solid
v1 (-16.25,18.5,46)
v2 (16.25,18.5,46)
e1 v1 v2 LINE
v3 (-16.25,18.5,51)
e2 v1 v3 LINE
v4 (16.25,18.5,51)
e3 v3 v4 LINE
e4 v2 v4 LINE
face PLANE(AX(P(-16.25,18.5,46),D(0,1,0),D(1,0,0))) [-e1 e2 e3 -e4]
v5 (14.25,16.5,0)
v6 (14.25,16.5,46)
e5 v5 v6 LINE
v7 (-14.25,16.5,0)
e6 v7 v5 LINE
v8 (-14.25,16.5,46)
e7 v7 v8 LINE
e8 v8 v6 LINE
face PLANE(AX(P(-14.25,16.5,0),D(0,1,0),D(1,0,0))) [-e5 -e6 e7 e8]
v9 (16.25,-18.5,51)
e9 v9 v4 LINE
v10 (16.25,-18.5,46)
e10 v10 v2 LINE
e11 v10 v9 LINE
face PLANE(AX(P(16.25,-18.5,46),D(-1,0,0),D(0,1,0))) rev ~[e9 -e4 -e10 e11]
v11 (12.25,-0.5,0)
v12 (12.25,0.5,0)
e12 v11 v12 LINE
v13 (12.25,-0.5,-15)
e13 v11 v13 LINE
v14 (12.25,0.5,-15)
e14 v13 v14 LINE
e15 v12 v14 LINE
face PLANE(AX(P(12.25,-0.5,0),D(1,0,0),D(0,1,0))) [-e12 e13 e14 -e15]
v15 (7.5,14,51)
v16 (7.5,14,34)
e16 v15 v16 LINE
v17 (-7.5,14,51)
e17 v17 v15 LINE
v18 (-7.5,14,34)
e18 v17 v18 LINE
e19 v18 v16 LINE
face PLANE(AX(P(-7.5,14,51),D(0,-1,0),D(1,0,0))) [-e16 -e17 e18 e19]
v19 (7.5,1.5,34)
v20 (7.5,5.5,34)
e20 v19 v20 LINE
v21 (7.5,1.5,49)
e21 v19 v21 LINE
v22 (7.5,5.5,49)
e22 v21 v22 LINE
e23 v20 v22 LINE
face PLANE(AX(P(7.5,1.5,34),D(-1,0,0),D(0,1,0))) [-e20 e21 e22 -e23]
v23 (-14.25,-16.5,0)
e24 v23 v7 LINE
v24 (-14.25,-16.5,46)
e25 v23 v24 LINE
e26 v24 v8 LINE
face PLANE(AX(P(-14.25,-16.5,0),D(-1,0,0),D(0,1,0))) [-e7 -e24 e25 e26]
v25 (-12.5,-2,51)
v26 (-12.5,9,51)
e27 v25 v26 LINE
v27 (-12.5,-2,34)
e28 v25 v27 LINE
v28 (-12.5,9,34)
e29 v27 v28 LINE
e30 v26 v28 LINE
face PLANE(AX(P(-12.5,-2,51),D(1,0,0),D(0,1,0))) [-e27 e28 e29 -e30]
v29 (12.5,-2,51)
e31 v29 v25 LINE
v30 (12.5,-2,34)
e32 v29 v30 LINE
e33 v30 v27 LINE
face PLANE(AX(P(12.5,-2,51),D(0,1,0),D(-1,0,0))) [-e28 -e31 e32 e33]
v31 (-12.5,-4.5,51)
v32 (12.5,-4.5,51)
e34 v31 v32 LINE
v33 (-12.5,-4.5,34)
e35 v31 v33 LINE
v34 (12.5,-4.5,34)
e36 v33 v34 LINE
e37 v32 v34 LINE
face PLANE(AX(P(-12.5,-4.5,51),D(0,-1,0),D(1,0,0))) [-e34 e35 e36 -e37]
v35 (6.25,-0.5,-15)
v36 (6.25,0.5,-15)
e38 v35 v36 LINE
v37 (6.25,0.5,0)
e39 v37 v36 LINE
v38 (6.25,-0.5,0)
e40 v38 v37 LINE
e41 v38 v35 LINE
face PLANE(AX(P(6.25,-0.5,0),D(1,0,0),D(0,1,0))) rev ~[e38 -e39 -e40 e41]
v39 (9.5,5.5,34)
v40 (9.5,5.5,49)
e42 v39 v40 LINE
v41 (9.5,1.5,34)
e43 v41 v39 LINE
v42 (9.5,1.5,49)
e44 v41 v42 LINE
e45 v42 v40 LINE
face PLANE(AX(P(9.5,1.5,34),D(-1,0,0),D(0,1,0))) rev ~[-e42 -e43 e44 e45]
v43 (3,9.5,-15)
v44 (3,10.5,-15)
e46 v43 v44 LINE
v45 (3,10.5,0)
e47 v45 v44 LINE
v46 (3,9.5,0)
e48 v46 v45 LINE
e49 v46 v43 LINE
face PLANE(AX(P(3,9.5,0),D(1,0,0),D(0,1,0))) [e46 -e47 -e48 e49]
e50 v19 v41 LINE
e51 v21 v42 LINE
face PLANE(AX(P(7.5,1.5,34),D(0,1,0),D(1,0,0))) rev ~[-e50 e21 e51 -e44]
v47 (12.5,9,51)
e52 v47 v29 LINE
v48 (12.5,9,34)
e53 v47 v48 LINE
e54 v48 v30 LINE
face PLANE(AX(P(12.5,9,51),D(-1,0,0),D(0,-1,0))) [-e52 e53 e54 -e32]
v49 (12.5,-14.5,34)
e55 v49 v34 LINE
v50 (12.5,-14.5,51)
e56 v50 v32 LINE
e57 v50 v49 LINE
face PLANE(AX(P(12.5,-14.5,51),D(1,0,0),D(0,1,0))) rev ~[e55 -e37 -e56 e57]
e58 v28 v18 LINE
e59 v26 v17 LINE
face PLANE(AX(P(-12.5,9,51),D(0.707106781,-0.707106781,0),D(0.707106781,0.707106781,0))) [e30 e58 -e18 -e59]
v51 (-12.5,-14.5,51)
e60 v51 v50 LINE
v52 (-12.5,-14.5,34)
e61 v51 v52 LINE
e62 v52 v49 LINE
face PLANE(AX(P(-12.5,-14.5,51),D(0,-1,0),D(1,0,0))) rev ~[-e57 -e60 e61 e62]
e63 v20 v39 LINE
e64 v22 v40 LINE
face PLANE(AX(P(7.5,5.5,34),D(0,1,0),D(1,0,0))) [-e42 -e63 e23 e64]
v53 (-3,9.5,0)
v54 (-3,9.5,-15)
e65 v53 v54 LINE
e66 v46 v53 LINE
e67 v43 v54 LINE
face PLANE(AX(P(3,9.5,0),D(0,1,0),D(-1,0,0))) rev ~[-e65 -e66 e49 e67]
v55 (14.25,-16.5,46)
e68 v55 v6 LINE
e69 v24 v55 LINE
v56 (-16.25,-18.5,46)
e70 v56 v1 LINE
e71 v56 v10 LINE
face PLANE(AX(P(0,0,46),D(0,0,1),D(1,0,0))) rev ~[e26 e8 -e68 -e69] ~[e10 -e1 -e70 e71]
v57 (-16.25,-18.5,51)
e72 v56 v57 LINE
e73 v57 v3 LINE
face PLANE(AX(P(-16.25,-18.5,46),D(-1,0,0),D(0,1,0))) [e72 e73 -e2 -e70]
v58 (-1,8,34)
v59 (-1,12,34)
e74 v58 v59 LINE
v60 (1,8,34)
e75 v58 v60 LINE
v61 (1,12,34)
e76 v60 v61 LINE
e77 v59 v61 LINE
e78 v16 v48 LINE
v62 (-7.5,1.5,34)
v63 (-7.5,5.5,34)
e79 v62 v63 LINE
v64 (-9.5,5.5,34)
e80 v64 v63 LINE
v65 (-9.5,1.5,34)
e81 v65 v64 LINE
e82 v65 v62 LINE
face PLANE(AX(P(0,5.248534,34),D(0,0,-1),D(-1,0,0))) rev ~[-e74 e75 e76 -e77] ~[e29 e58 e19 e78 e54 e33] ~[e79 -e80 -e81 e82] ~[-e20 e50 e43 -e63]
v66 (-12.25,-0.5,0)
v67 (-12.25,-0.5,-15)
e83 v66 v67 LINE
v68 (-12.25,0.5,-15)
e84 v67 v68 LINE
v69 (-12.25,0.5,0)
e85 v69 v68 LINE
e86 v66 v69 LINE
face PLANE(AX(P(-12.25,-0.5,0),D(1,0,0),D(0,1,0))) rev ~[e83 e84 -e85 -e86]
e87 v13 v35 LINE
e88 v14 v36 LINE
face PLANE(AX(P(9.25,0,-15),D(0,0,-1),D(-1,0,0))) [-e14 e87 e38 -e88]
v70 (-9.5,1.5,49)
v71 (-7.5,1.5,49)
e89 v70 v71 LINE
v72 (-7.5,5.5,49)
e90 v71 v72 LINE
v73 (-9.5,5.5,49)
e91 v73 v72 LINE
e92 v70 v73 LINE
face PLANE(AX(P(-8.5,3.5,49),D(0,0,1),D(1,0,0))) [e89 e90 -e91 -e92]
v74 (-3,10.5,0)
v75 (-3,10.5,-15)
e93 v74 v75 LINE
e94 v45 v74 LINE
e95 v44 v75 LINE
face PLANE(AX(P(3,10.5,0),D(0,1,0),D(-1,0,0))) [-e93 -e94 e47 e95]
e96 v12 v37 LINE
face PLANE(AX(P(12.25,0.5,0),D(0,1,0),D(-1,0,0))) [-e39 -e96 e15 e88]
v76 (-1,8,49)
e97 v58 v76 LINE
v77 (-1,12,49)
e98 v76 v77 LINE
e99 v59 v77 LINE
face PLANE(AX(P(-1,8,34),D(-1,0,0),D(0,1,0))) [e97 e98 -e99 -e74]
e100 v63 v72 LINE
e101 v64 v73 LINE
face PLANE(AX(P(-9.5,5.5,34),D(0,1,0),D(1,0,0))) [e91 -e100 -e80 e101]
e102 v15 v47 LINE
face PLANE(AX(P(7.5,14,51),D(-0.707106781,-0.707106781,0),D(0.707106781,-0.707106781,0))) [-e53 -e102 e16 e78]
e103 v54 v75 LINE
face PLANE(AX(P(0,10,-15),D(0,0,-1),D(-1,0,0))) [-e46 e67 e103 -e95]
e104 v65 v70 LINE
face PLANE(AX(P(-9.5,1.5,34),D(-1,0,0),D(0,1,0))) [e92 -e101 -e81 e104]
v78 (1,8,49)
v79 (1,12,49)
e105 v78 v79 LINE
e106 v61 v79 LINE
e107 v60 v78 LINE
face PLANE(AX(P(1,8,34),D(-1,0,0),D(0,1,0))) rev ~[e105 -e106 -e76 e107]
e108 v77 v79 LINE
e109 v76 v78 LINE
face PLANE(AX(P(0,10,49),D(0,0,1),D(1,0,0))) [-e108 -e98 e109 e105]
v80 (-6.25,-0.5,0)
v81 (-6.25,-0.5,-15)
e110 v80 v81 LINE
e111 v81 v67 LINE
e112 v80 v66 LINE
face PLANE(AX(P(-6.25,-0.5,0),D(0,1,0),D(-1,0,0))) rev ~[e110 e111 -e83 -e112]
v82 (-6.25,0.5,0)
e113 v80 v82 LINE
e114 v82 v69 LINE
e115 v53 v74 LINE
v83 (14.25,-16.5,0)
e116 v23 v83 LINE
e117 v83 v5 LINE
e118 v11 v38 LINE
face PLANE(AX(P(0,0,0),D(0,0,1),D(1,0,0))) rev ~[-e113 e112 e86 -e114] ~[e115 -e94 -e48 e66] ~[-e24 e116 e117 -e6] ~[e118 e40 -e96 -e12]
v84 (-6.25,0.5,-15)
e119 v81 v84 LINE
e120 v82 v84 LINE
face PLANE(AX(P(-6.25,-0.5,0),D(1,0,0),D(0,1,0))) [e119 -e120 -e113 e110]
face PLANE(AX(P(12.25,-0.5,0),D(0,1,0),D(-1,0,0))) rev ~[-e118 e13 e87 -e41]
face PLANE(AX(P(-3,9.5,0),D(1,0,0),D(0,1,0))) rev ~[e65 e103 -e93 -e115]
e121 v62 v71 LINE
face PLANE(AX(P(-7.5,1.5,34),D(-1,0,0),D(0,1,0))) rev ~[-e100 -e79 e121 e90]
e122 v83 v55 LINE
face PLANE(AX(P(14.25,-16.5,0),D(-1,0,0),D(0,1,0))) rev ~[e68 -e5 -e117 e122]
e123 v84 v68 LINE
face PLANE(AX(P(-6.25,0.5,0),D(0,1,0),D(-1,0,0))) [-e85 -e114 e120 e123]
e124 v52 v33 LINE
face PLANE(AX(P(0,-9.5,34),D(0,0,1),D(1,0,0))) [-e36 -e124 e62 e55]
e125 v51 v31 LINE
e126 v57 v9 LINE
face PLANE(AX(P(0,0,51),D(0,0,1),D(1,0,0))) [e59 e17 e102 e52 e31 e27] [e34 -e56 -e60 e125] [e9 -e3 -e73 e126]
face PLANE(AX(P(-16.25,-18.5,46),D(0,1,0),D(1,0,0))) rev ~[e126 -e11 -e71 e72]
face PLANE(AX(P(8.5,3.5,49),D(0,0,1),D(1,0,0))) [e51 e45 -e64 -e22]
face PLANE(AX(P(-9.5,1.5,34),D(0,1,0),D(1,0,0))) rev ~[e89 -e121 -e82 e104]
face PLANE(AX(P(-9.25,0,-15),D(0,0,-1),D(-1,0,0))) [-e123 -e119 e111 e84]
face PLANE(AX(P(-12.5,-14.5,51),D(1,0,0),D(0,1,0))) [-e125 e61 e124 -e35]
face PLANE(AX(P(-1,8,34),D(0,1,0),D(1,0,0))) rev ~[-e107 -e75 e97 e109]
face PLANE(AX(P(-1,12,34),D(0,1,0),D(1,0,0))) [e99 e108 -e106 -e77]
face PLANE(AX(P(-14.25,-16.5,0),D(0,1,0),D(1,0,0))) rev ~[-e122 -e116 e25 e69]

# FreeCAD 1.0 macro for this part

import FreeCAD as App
import Part
import Sketcher
Q = App.Units.Quantity

doc = App.newDocument("Part")
body = doc.addObject("PartDesign::Body", "Body")

# Sketch on XY plane
sketch1 = body.newObject("Sketcher::SketchObject", "Sketch")
sketch1.AttachmentSupport = (doc.getObject("XY_Plane"), [""])
sketch1.MapMode = "FlatFace"
sketch1.addGeometry([
    Part.LineSegment(App.Vector(-14.25, 16.5, 0), App.Vector(-14.25, -16.5, 0)),
    Part.LineSegment(App.Vector(-14.25, -16.5, 0), App.Vector(14.25, -16.5, 0)),
    Part.LineSegment(App.Vector(14.25, -16.5, 0), App.Vector(14.25, 16.5, 0)),
    Part.LineSegment(App.Vector(14.25, 16.5, 0), App.Vector(-14.25, 16.5, 0)),
], False)
sketch1.addConstraint([
    Sketcher.Constraint("Coincident", 0, 2, 1, 1),
    Sketcher.Constraint("Coincident", 1, 2, 2, 1),
    Sketcher.Constraint("Coincident", 2, 2, 3, 1),
    Sketcher.Constraint("Coincident", 3, 2, 0, 1),
    Sketcher.Constraint("Vertical", 0),
    Sketcher.Constraint("Horizontal", 1),
    Sketcher.Constraint("Vertical", 2),
    Sketcher.Constraint("Horizontal", 3),
    Sketcher.Constraint("Symmetric", 0, 2, 2, 2, -1, 1),
    Sketcher.Constraint("DistanceY", 0, 2, 0, 1, Q("33 mm")),
    Sketcher.Constraint("DistanceX", 1, 1, 1, 2, Q("28.5 mm")),
])
pad1 = body.newObject("PartDesign::Pad", "Pad")
pad1.Profile = sketch1
pad1.Length = 46

# Sketch on XY plane
sketch2 = body.newObject("Sketcher::SketchObject", "Sketch001")
sketch2.AttachmentSupport = (doc.getObject("XY_Plane"), [""])
sketch2.MapMode = "FlatFace"
sketch2.AttachmentOffset = App.Placement(App.Vector(0, 0, 46), App.Rotation())
sketch2.addGeometry([
    Part.LineSegment(App.Vector(-16.25, 18.5, 0), App.Vector(-16.25, -18.5, 0)),
    Part.LineSegment(App.Vector(-16.25, -18.5, 0), App.Vector(16.25, -18.5, 0)),
    Part.LineSegment(App.Vector(16.25, -18.5, 0), App.Vector(16.25, 18.5, 0)),
    Part.LineSegment(App.Vector(16.25, 18.5, 0), App.Vector(-16.25, 18.5, 0)),
], False)
sketch2.addConstraint([
    Sketcher.Constraint("Coincident", 0, 2, 1, 1),
    Sketcher.Constraint("Coincident", 1, 2, 2, 1),
    Sketcher.Constraint("Coincident", 2, 2, 3, 1),
    Sketcher.Constraint("Coincident", 3, 2, 0, 1),
    Sketcher.Constraint("Vertical", 0),
    Sketcher.Constraint("Horizontal", 1),
    Sketcher.Constraint("Vertical", 2),
    Sketcher.Constraint("Horizontal", 3),
    Sketcher.Constraint("Symmetric", 0, 2, 2, 2, -1, 1),
    Sketcher.Constraint("DistanceY", 0, 2, 0, 1, Q("37 mm")),
    Sketcher.Constraint("DistanceX", 1, 1, 1, 2, Q("32.5 mm")),
])
pad2 = body.newObject("PartDesign::Pad", "Pad001")
pad2.Profile = sketch2
pad2.Length = 5

# Sketch on XY plane
sketch3 = body.newObject("Sketcher::SketchObject", "Sketch002")
sketch3.AttachmentSupport = (doc.getObject("XY_Plane"), [""])
sketch3.MapMode = "FlatFace"
sketch3.AttachmentOffset = App.Placement(App.Vector(0, 0, 51), App.Rotation())
sketch3.addGeometry([
    Part.LineSegment(App.Vector(-12.5, -2, 0), App.Vector(12.5, -2, 0)),  # 0
    Part.LineSegment(App.Vector(12.5, -2, 0), App.Vector(12.5, 9, 0)),  # 1
    Part.LineSegment(App.Vector(12.5, 9, 0), App.Vector(7.5, 14, 0)),  # 2
    Part.LineSegment(App.Vector(7.5, 14, 0), App.Vector(-7.5, 14, 0)),  # 3
    Part.LineSegment(App.Vector(-7.5, 14, 0), App.Vector(-12.5, 9, 0)),  # 4
    Part.LineSegment(App.Vector(-12.5, 9, 0), App.Vector(-12.5, -2, 0)),  # 5
    Part.LineSegment(App.Vector(-12.5, -4.5, 0), App.Vector(-12.5, -14.5, 0)),  # 6
    Part.LineSegment(App.Vector(-12.5, -14.5, 0), App.Vector(12.5, -14.5, 0)),  # 7
    Part.LineSegment(App.Vector(12.5, -14.5, 0), App.Vector(12.5, -4.5, 0)),  # 8
    Part.LineSegment(App.Vector(12.5, -4.5, 0), App.Vector(-12.5, -4.5, 0)),  # 9
], False)
sketch3.addConstraint([
    Sketcher.Constraint("Coincident", 0, 2, 1, 1),
    Sketcher.Constraint("Coincident", 1, 2, 2, 1),
    Sketcher.Constraint("Coincident", 2, 2, 3, 1),
    Sketcher.Constraint("Coincident", 3, 2, 4, 1),
    Sketcher.Constraint("Coincident", 4, 2, 5, 1),
    Sketcher.Constraint("Coincident", 5, 2, 0, 1),
    Sketcher.Constraint("Coincident", 6, 2, 7, 1),
    Sketcher.Constraint("Coincident", 7, 2, 8, 1),
    Sketcher.Constraint("Coincident", 8, 2, 9, 1),
    Sketcher.Constraint("Coincident", 9, 2, 6, 1),
    Sketcher.Constraint("Horizontal", 0),
    Sketcher.Constraint("Vertical", 1),
    Sketcher.Constraint("Horizontal", 3),
    Sketcher.Constraint("Vertical", 5),
    Sketcher.Constraint("Vertical", 6),
    Sketcher.Constraint("Horizontal", 7),
    Sketcher.Constraint("Vertical", 8),
    Sketcher.Constraint("Horizontal", 9),
    Sketcher.Constraint("Symmetric", 1, 2, 4, 2, -2),
    Sketcher.Constraint("Perpendicular", 2, 4),
    Sketcher.Constraint("Vertical", 5, 2, 6, 2),
    Sketcher.Constraint("Vertical", 1, 2, 7, 2),
    Sketcher.Constraint("Equal", 2, 4),
    Sketcher.Constraint("DistanceX", 0, 1, 0, 2, Q("25 mm")),
    Sketcher.Constraint("DistanceX", 3, 2, 3, 1, Q("15 mm")),
    Sketcher.Constraint("DistanceY", 1, 1, 1, 2, Q("11 mm")),
    Sketcher.Constraint("DistanceY", 6, 2, 6, 1, Q("10 mm")),
    Sketcher.Constraint("DistanceY", 0, 2, -1, 1, Q("2 mm")),
    Sketcher.Constraint("DistanceY", 6, 2, -1, 1, Q("14.5 mm")),
])
pocket1 = body.newObject("PartDesign::Pocket", "Pocket")
pocket1.Profile = sketch3
pocket1.Length = 17

# Sketch on XY plane
sketch4 = body.newObject("Sketcher::SketchObject", "Sketch003")
sketch4.AttachmentSupport = (doc.getObject("XY_Plane"), [""])
sketch4.MapMode = "FlatFace"
sketch4.AttachmentOffset = App.Placement(App.Vector(0, 0, 34), App.Rotation())
sketch4.addGeometry([
    Part.LineSegment(App.Vector(-9.5, 5.5, 0), App.Vector(-9.5, 1.5, 0)),  # 0
    Part.LineSegment(App.Vector(-9.5, 1.5, 0), App.Vector(-7.5, 1.5, 0)),  # 1
    Part.LineSegment(App.Vector(-7.5, 1.5, 0), App.Vector(-7.5, 5.5, 0)),  # 2
    Part.LineSegment(App.Vector(-7.5, 5.5, 0), App.Vector(-9.5, 5.5, 0)),  # 3
    Part.LineSegment(App.Vector(-1, 12, 0), App.Vector(-1, 8, 0)),  # 4
    Part.LineSegment(App.Vector(-1, 8, 0), App.Vector(1, 8, 0)),  # 5
    Part.LineSegment(App.Vector(1, 8, 0), App.Vector(1, 12, 0)),  # 6
    Part.LineSegment(App.Vector(1, 12, 0), App.Vector(-1, 12, 0)),  # 7
    Part.LineSegment(App.Vector(7.5, 5.5, 0), App.Vector(7.5, 1.5, 0)),  # 8
    Part.LineSegment(App.Vector(7.5, 1.5, 0), App.Vector(9.5, 1.5, 0)),  # 9
    Part.LineSegment(App.Vector(9.5, 1.5, 0), App.Vector(9.5, 5.5, 0)),  # 10
    Part.LineSegment(App.Vector(9.5, 5.5, 0), App.Vector(7.5, 5.5, 0)),  # 11
], False)
sketch4.addConstraint([
    Sketcher.Constraint("Coincident", 0, 2, 1, 1),
    Sketcher.Constraint("Coincident", 1, 2, 2, 1),
    Sketcher.Constraint("Coincident", 2, 2, 3, 1),
    Sketcher.Constraint("Coincident", 3, 2, 0, 1),
    Sketcher.Constraint("Coincident", 4, 2, 5, 1),
    Sketcher.Constraint("Coincident", 5, 2, 6, 1),
    Sketcher.Constraint("Coincident", 6, 2, 7, 1),
    Sketcher.Constraint("Coincident", 7, 2, 4, 1),
    Sketcher.Constraint("Coincident", 8, 2, 9, 1),
    Sketcher.Constraint("Coincident", 9, 2, 10, 1),
    Sketcher.Constraint("Coincident", 10, 2, 11, 1),
    Sketcher.Constraint("Coincident", 11, 2, 8, 1),
    Sketcher.Constraint("Vertical", 0),
    Sketcher.Constraint("Horizontal", 1),
    Sketcher.Constraint("Vertical", 2),
    Sketcher.Constraint("Horizontal", 3),
    Sketcher.Constraint("Vertical", 4),
    Sketcher.Constraint("Horizontal", 5),
    Sketcher.Constraint("Vertical", 6),
    Sketcher.Constraint("Horizontal", 7),
    Sketcher.Constraint("Vertical", 8),
    Sketcher.Constraint("Horizontal", 9),
    Sketcher.Constraint("Vertical", 10),
    Sketcher.Constraint("Horizontal", 11),
    Sketcher.Constraint("Symmetric", 1, 2, 8, 2, -2),
    Sketcher.Constraint("Symmetric", 3, 2, 10, 2, -2),
    Sketcher.Constraint("Equal", 3, 5),
    Sketcher.Constraint("Equal", 2, 4),
    Sketcher.Constraint("DistanceX", 1, 1, 1, 2, Q("2 mm")),
    Sketcher.Constraint("DistanceY", 0, 2, 0, 1, Q("4 mm")),
    Sketcher.Constraint("DistanceX", 4, 2, -1, 1, Q("1 mm")),
    Sketcher.Constraint("DistanceY", -1, 1, 4, 2, Q("8 mm")),
    Sketcher.Constraint("DistanceX", 1, 2, 8, 2, Q("15 mm")),
    Sketcher.Constraint("DistanceY", -1, 1, 0, 2, Q("1.5 mm")),
])
pad3 = body.newObject("PartDesign::Pad", "Pad002")
pad3.Profile = sketch4
pad3.Length = 15

# Sketch on XY plane
sketch5 = body.newObject("Sketcher::SketchObject", "Sketch004")
sketch5.AttachmentSupport = (doc.getObject("XY_Plane"), [""])
sketch5.MapMode = "FlatFace"
sketch5.addGeometry([
    Part.LineSegment(App.Vector(12.25, 0.5, 0), App.Vector(12.25, -0.5, 0)),  # 0
    Part.LineSegment(App.Vector(12.25, -0.5, 0), App.Vector(6.25, -0.5, 0)),  # 1
    Part.LineSegment(App.Vector(6.25, -0.5, 0), App.Vector(6.25, 0.5, 0)),  # 2
    Part.LineSegment(App.Vector(6.25, 0.5, 0), App.Vector(12.25, 0.5, 0)),  # 3
    Part.LineSegment(App.Vector(3, 10.5, 0), App.Vector(3, 9.5, 0)),  # 4
    Part.LineSegment(App.Vector(3, 9.5, 0), App.Vector(-3, 9.5, 0)),  # 5
    Part.LineSegment(App.Vector(-3, 9.5, 0), App.Vector(-3, 10.5, 0)),  # 6
    Part.LineSegment(App.Vector(-3, 10.5, 0), App.Vector(3, 10.5, 0)),  # 7
    Part.LineSegment(App.Vector(-6.25, 0.5, 0), App.Vector(-6.25, -0.5, 0)),  # 8
    Part.LineSegment(App.Vector(-6.25, -0.5, 0), App.Vector(-12.25, -0.5, 0)),  # 9
    Part.LineSegment(App.Vector(-12.25, -0.5, 0), App.Vector(-12.25, 0.5, 0)),  # 10
    Part.LineSegment(App.Vector(-12.25, 0.5, 0), App.Vector(-6.25, 0.5, 0)),  # 11
], False)
sketch5.addConstraint([
    Sketcher.Constraint("Coincident", 0, 2, 1, 1),
    Sketcher.Constraint("Coincident", 1, 2, 2, 1),
    Sketcher.Constraint("Coincident", 2, 2, 3, 1),
    Sketcher.Constraint("Coincident", 3, 2, 0, 1),
    Sketcher.Constraint("Coincident", 4, 2, 5, 1),
    Sketcher.Constraint("Coincident", 5, 2, 6, 1),
    Sketcher.Constraint("Coincident", 6, 2, 7, 1),
    Sketcher.Constraint("Coincident", 7, 2, 4, 1),
    Sketcher.Constraint("Coincident", 8, 2, 9, 1),
    Sketcher.Constraint("Coincident", 9, 2, 10, 1),
    Sketcher.Constraint("Coincident", 10, 2, 11, 1),
    Sketcher.Constraint("Coincident", 11, 2, 8, 1),
    Sketcher.Constraint("Vertical", 0),
    Sketcher.Constraint("Horizontal", 1),
    Sketcher.Constraint("Vertical", 2),
    Sketcher.Constraint("Horizontal", 3),
    Sketcher.Constraint("Vertical", 4),
    Sketcher.Constraint("Horizontal", 5),
    Sketcher.Constraint("Vertical", 6),
    Sketcher.Constraint("Horizontal", 7),
    Sketcher.Constraint("Vertical", 8),
    Sketcher.Constraint("Horizontal", 9),
    Sketcher.Constraint("Vertical", 10),
    Sketcher.Constraint("Horizontal", 11),
    Sketcher.Constraint("Symmetric", 2, 2, 8, 2, -1, 1),
    Sketcher.Constraint("Symmetric", 0, 2, 10, 2, -1, 1),
    Sketcher.Constraint("Horizontal", 1, 2, 8, 2),
    Sketcher.Constraint("Equal", 3, 5),
    Sketcher.Constraint("Equal", 2, 4),
    Sketcher.Constraint("DistanceX", 1, 2, 1, 1, Q("6 mm")),
    Sketcher.Constraint("DistanceY", 0, 2, 0, 1, Q("1 mm")),
    Sketcher.Constraint("DistanceX", -1, 1, 4, 2, Q("3 mm")),
    Sketcher.Constraint("DistanceY", 2, 2, 4, 2, Q("9 mm")),
    Sketcher.Constraint("DistanceX", 8, 2, 1, 2, Q("12.5 mm")),
])
pad4 = body.newObject("PartDesign::Pad", "Pad003")
pad4.Profile = sketch5
pad4.Length = 15
pad4.Reversed = True

doc.recompute()
